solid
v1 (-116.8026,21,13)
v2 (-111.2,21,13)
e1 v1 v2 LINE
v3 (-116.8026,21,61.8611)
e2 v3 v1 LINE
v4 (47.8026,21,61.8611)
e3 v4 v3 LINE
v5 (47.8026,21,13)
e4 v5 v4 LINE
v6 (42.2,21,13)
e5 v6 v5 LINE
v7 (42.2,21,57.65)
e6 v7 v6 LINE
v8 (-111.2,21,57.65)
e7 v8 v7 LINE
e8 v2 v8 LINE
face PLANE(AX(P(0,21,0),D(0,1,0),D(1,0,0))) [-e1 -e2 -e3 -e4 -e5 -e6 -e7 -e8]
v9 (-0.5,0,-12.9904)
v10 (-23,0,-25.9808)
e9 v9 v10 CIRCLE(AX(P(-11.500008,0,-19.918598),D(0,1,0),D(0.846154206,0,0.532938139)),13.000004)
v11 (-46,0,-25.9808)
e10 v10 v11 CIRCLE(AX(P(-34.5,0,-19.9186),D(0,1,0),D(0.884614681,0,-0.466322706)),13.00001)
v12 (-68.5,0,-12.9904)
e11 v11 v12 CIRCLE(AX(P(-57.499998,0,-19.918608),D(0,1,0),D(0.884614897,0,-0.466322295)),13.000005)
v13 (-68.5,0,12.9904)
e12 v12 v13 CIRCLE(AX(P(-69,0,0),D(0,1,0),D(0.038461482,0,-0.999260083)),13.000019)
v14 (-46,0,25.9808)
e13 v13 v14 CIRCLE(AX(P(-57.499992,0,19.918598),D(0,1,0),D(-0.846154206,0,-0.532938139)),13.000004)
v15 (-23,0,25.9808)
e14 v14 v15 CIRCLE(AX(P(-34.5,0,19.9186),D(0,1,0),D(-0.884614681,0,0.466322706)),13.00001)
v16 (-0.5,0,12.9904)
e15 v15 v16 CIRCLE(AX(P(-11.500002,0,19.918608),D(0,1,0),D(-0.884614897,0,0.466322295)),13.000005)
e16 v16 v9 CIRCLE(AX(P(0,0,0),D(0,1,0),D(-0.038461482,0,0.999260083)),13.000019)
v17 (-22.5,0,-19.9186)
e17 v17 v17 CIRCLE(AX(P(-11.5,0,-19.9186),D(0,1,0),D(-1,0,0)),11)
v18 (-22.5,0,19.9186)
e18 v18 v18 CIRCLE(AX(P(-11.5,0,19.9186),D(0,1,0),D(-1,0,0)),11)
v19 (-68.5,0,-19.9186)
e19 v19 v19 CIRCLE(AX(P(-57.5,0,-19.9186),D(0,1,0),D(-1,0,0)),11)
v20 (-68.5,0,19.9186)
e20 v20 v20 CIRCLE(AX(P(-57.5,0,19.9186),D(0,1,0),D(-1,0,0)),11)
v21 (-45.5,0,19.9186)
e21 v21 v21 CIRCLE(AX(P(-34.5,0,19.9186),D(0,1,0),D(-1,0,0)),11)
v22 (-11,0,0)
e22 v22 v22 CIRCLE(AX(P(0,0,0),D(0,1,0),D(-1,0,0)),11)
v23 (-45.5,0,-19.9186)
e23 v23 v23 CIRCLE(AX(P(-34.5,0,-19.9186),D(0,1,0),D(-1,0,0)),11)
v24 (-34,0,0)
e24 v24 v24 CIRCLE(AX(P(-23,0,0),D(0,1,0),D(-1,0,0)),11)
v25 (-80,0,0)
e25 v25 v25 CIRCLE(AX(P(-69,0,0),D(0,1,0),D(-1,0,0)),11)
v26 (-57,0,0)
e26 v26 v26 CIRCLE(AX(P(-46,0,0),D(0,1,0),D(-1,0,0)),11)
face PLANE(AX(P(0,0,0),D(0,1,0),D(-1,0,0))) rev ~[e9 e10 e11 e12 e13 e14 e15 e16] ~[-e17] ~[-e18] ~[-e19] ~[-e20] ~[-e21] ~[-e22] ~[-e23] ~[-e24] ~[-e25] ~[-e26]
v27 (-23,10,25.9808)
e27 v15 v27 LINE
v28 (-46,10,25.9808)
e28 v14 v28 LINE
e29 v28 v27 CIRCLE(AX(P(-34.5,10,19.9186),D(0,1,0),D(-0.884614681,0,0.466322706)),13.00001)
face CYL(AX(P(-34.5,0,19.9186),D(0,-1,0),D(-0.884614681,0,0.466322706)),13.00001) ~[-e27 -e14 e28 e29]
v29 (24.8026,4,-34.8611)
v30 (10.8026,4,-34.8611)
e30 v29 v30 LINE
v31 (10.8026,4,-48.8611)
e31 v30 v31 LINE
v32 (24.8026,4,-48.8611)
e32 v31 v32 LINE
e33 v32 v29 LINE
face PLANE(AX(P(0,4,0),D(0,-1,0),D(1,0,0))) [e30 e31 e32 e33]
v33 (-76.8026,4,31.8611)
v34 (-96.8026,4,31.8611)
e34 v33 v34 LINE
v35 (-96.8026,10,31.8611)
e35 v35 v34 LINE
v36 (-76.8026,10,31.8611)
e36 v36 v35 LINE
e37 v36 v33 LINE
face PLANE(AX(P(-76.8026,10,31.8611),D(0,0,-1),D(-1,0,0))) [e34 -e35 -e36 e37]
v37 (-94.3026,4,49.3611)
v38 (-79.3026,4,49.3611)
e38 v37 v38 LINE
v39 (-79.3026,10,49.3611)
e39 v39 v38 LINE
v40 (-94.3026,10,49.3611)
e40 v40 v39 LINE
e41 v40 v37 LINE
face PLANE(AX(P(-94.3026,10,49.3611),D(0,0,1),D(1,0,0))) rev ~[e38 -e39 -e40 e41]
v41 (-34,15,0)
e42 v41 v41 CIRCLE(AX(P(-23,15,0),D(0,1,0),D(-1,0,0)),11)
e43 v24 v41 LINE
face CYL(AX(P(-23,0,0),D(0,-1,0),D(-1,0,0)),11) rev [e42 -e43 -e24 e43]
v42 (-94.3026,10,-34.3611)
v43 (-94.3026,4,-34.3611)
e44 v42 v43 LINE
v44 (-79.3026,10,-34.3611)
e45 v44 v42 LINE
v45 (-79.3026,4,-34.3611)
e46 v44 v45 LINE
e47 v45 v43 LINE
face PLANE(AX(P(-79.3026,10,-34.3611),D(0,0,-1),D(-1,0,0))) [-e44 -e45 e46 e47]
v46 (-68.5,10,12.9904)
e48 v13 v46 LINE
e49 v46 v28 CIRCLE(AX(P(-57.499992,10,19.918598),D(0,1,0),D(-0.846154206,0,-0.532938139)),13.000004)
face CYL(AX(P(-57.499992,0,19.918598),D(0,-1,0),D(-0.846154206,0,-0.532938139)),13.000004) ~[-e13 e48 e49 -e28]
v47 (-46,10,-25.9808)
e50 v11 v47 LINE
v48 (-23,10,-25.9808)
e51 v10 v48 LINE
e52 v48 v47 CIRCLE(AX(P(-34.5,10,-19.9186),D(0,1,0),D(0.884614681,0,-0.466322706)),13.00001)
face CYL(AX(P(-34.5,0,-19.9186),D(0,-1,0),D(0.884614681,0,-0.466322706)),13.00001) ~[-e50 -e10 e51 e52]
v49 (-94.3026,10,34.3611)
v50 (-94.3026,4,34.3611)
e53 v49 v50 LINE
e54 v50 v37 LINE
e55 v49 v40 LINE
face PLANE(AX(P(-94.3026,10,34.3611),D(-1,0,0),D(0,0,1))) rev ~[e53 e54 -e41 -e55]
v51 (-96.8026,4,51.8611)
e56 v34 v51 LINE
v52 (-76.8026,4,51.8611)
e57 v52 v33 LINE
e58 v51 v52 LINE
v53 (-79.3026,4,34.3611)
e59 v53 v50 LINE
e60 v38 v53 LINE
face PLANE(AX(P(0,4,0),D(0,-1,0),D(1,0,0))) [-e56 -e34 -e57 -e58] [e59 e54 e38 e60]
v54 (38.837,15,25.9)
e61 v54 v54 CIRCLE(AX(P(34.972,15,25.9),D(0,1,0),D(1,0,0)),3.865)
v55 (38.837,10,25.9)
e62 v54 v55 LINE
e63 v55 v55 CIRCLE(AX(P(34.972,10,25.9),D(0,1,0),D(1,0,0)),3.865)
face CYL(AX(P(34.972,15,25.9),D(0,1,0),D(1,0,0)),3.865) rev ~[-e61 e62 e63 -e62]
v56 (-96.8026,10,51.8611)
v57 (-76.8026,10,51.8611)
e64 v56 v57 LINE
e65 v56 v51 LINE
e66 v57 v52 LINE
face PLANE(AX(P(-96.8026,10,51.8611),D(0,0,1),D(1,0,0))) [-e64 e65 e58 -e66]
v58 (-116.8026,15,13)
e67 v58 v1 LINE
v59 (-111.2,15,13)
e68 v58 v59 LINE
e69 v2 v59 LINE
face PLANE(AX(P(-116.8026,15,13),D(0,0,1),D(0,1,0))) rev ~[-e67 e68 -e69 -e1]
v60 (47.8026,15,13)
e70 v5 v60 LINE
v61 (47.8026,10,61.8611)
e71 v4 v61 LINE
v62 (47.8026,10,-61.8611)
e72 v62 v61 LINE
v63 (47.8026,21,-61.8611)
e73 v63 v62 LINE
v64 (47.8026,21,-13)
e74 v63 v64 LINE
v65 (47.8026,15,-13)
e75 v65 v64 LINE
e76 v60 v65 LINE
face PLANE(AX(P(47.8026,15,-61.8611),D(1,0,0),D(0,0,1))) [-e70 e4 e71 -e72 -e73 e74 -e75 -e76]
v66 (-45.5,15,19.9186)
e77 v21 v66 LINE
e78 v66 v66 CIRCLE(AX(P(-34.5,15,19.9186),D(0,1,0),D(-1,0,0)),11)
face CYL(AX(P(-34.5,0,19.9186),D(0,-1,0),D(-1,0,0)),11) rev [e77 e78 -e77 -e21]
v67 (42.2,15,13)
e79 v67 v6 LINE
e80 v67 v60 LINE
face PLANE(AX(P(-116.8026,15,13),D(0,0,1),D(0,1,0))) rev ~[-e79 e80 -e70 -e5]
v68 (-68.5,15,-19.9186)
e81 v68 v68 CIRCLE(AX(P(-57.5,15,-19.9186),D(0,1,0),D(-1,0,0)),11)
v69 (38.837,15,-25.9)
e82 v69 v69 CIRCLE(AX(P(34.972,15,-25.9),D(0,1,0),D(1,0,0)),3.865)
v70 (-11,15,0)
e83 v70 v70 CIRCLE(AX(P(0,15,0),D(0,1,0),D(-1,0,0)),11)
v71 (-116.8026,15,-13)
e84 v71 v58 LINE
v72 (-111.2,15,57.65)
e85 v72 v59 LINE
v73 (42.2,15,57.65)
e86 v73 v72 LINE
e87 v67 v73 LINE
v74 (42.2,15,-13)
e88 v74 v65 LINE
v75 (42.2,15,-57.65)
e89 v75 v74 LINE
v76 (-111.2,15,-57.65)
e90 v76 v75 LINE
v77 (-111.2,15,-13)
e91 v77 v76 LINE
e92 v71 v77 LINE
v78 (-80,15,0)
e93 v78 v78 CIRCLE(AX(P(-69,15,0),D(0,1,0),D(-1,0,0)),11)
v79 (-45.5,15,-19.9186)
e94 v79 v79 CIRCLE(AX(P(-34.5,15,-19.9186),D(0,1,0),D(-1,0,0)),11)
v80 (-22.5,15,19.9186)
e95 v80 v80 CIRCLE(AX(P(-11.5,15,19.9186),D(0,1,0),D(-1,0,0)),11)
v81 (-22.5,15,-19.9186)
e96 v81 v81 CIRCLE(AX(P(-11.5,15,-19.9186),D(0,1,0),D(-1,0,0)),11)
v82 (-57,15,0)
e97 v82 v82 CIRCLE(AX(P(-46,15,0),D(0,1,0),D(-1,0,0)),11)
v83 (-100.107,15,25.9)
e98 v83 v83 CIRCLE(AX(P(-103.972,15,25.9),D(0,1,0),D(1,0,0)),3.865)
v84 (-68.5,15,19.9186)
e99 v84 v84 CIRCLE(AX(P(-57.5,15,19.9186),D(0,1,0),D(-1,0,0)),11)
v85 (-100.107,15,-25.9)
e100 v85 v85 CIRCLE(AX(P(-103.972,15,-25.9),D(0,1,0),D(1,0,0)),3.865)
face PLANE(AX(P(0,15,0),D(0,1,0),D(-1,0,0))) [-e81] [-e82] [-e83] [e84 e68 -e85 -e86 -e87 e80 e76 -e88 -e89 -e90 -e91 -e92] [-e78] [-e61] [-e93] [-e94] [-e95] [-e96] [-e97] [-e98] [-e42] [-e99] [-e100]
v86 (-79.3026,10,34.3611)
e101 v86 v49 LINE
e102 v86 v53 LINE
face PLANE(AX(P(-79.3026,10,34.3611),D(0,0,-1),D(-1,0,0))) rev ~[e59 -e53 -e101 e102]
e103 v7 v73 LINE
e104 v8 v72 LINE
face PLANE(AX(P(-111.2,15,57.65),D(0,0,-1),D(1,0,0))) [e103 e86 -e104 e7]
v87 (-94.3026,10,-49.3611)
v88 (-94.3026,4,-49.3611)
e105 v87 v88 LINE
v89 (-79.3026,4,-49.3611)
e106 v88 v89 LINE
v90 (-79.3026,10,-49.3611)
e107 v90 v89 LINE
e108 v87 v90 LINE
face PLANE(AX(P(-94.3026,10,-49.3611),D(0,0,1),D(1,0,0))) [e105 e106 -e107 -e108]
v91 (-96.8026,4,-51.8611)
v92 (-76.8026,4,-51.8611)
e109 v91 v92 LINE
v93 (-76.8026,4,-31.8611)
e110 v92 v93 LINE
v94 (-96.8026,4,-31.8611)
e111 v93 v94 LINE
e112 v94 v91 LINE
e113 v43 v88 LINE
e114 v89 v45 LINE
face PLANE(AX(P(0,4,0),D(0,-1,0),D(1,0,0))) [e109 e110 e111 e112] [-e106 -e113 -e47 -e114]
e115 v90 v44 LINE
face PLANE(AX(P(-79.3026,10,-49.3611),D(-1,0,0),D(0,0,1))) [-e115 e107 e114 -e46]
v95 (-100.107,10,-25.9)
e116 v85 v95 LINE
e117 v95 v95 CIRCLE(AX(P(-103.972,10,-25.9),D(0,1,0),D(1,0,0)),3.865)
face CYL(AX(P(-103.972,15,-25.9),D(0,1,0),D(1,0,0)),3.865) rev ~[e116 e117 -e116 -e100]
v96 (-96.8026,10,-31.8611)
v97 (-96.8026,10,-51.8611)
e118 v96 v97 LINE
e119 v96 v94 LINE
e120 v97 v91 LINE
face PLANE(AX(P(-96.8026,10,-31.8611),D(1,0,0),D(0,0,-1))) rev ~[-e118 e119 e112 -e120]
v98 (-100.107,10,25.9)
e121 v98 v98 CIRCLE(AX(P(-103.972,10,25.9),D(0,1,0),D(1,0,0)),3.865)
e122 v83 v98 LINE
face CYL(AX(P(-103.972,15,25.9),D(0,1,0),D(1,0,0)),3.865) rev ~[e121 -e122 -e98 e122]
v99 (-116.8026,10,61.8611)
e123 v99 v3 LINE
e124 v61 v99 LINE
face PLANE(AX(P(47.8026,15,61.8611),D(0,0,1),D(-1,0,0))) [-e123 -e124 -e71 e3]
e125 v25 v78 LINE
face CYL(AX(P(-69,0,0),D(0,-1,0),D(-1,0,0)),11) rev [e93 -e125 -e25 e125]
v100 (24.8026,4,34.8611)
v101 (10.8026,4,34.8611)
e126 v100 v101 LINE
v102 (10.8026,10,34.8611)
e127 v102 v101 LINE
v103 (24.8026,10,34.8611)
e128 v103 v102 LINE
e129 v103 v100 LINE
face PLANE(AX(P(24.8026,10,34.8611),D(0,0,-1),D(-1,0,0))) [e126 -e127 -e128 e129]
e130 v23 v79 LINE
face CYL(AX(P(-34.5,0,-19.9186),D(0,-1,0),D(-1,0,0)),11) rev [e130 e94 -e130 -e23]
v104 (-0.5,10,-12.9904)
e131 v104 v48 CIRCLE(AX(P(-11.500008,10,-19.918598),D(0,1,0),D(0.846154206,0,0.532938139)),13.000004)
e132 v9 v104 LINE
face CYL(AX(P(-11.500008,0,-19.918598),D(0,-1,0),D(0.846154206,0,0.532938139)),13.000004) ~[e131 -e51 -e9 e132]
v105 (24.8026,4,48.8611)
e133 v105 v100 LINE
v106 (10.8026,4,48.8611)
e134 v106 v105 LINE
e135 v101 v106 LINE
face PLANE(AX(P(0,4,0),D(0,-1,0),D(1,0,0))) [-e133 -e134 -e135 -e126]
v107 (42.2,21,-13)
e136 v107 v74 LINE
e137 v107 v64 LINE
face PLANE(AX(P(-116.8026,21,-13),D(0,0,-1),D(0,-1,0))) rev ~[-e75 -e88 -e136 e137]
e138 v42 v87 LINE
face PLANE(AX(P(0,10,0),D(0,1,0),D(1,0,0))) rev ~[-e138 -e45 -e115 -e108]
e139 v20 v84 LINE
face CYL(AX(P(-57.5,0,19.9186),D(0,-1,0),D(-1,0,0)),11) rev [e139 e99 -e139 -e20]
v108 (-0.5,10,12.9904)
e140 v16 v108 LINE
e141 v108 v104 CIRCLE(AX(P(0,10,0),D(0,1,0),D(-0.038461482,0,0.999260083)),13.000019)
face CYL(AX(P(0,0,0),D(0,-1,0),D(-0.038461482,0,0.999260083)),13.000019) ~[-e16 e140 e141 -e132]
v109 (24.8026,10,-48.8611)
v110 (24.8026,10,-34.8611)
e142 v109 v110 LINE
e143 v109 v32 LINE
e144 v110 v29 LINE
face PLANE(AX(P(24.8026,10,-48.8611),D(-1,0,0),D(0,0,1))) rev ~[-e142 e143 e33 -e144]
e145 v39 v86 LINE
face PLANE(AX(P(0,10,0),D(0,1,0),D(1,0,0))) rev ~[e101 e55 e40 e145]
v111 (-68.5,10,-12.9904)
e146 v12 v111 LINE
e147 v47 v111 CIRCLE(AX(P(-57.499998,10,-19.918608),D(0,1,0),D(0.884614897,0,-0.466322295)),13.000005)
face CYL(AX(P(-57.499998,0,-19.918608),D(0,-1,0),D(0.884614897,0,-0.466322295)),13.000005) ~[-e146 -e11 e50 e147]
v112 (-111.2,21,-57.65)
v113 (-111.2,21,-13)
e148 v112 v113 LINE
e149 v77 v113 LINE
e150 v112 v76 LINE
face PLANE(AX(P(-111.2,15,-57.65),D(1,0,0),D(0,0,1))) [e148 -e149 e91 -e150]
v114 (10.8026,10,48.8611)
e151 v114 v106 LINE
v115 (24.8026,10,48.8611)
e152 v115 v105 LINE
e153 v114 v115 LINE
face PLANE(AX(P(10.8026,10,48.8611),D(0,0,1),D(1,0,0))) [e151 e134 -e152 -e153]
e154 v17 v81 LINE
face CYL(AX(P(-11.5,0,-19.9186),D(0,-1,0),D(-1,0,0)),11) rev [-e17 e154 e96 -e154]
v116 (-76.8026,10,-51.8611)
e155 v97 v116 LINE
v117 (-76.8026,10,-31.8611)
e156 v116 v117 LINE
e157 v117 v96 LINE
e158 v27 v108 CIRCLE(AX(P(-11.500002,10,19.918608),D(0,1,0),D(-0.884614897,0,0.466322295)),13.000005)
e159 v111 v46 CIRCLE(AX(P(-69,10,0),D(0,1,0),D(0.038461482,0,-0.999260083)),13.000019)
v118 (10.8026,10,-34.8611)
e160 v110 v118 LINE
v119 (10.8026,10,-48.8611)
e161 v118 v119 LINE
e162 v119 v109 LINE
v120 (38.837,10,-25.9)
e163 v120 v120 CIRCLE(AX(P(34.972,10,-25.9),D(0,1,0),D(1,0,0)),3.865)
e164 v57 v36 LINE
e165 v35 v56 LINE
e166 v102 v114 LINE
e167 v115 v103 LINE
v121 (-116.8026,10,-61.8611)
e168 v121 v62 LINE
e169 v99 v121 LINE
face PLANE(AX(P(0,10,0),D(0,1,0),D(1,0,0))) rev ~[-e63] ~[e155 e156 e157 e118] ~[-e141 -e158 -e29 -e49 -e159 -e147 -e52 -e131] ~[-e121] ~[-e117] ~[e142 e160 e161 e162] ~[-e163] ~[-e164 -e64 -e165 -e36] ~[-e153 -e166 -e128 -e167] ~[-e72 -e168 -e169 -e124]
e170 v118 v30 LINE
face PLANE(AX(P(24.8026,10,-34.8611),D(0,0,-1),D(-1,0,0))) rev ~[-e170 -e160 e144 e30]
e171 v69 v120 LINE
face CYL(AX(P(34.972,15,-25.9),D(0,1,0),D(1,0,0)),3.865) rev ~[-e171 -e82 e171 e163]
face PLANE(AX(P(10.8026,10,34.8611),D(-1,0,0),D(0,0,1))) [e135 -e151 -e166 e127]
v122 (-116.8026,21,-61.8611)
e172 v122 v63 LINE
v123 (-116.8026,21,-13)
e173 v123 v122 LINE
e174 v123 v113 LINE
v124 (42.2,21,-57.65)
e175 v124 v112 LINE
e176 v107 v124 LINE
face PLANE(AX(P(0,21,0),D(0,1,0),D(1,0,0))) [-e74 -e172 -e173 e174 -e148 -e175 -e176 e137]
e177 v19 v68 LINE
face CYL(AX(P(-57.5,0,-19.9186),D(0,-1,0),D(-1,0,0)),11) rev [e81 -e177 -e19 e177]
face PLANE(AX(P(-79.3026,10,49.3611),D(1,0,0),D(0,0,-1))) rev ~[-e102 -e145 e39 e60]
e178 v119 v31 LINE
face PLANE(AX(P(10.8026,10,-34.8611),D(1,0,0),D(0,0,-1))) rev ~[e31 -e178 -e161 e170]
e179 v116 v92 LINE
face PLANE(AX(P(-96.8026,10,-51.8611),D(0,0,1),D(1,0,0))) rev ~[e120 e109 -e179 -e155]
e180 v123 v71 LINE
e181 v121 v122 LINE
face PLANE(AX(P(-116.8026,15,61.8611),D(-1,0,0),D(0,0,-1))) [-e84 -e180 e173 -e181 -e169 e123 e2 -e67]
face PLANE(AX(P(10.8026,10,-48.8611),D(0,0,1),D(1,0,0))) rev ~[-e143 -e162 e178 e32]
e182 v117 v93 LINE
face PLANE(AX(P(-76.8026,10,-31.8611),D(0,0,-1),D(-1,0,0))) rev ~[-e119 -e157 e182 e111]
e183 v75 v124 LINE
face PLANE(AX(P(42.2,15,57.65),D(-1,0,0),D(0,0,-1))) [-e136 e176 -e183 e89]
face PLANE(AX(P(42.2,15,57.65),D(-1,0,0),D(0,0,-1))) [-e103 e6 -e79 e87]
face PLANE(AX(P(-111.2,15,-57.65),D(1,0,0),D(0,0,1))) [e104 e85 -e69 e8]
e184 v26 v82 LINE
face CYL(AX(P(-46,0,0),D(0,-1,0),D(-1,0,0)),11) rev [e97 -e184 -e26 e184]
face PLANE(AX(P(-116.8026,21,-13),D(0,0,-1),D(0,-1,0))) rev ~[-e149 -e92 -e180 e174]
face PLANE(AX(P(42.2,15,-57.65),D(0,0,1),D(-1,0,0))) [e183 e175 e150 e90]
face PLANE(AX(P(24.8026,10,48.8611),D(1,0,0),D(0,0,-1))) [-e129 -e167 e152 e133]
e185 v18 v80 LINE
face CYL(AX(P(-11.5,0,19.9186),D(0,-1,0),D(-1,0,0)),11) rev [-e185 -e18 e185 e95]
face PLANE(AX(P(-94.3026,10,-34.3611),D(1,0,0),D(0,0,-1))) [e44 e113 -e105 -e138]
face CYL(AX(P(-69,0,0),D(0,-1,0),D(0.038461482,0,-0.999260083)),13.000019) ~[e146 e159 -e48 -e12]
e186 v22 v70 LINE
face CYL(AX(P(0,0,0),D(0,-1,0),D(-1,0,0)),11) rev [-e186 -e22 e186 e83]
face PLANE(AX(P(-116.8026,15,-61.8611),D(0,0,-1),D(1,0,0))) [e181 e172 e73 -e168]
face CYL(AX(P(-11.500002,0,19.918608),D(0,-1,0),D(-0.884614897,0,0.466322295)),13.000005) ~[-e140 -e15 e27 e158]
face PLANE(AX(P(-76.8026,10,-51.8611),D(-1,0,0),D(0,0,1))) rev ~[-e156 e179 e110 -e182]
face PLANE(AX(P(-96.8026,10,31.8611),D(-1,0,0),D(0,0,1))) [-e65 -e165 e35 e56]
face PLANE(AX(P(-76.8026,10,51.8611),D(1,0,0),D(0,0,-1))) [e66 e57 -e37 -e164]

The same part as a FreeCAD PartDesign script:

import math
import FreeCAD as App
import Part
import Sketcher
Q = App.Units.Quantity

doc = App.newDocument("Part")
body = doc.addObject("PartDesign::Body", "Body")

# Sketch on XZ plane
sketch1 = doc.addObject("Sketcher::SketchObject", "Sketch")
body.addObject(sketch1)
sketch1.AttachmentSupport = (doc.XZ_Plane, [""])
sketch1.MapMode = "FlatFace"
sketch1.addGeometry([
    Part.ArcOfCircle(Part.Circle(App.Vector(-12, 20, 0), App.Vector(0, 0, 1), 13), math.radians(-32), math.radians(152)),  # 0
    Part.ArcOfCircle(Part.Circle(App.Vector(0, 0, 0), App.Vector(0, 0, 1), 13), math.radians(-92), math.radians(92)),  # 1
    Part.ArcOfCircle(Part.Circle(App.Vector(-12, -20, 0), App.Vector(0, 0, 1), 13), math.radians(-152), math.radians(32)),  # 2
    Part.ArcOfCircle(Part.Circle(App.Vector(-34, -20, 0), App.Vector(0, 0, 1), 13), math.radians(-152), math.radians(-28)),  # 3
    Part.ArcOfCircle(Part.Circle(App.Vector(-58, -20, 0), App.Vector(0, 0, 1), 13), math.radians(148), math.radians(332)),  # 4
    Part.ArcOfCircle(Part.Circle(App.Vector(-69, 0, 0), App.Vector(0, 0, 1), 13), math.radians(88), math.radians(272)),  # 5
    Part.ArcOfCircle(Part.Circle(App.Vector(-58, 20, 0), App.Vector(0, 0, 1), 13), math.radians(28), math.radians(212)),  # 6
    Part.ArcOfCircle(Part.Circle(App.Vector(-34, 20, 0), App.Vector(0, 0, 1), 13), math.radians(28), math.radians(152)),  # 7
    Part.Circle(App.Vector(-12, -20, 0), App.Vector(0, 0, 1), 11),  # 8
    Part.Circle(App.Vector(-34, -20, 0), App.Vector(0, 0, 1), 11),  # 9
    Part.Circle(App.Vector(-58, -20, 0), App.Vector(0, 0, 1), 11),  # 10
    Part.Circle(App.Vector(0, 0, 0), App.Vector(0, 0, 1), 11),  # 11
    Part.Circle(App.Vector(-23, 0, 0), App.Vector(0, 0, 1), 11),  # 12
    Part.Circle(App.Vector(-12, 20, 0), App.Vector(0, 0, 1), 11),  # 13
    Part.Circle(App.Vector(-34, 20, 0), App.Vector(0, 0, 1), 11),  # 14
    Part.Circle(App.Vector(-46, 0, 0), App.Vector(0, 0, 1), 11),  # 15
    Part.Circle(App.Vector(-69, 0, 0), App.Vector(0, 0, 1), 11),  # 16
    Part.Circle(App.Vector(-58, 20, 0), App.Vector(0, 0, 1), 11),  # 17
], False)
sketch1.addConstraint([
    Sketcher.Constraint("Coincident", 0, 1, 1, 2),
    Sketcher.Constraint("Coincident", 1, 1, 2, 2),
    Sketcher.Constraint("Coincident", 2, 1, 3, 2),
    Sketcher.Constraint("Coincident", 3, 1, 4, 2),
    Sketcher.Constraint("Coincident", 4, 1, 5, 2),
    Sketcher.Constraint("Coincident", 5, 1, 6, 2),
    Sketcher.Constraint("Coincident", 6, 1, 7, 2),
    Sketcher.Constraint("Coincident", 7, 1, 0, 2),
    Sketcher.Constraint("Coincident", 1, 3, -1, 1),
    Sketcher.Constraint("Coincident", 11, 3, -1, 1),
    Sketcher.Constraint("Coincident", 8, 3, 2, 3),
    Sketcher.Constraint("Coincident", 9, 3, 3, 3),
    Sketcher.Constraint("Coincident", 10, 3, 4, 3),
    Sketcher.Constraint("Coincident", 13, 3, 0, 3),
    Sketcher.Constraint("Coincident", 14, 3, 7, 3),
    Sketcher.Constraint("Coincident", 16, 3, 5, 3),
    Sketcher.Constraint("Coincident", 17, 3, 6, 3),
    Sketcher.Constraint("Equal", 0, 1),
    Sketcher.Constraint("Equal", 1, 2),
    Sketcher.Constraint("Equal", 2, 3),
    Sketcher.Constraint("Equal", 3, 4),
    Sketcher.Constraint("Equal", 4, 5),
    Sketcher.Constraint("Equal", 5, 6),
    Sketcher.Constraint("Equal", 6, 7),
    Sketcher.Constraint("Equal", 8, 9),
    Sketcher.Constraint("Equal", 9, 10),
    Sketcher.Constraint("Equal", 10, 11),
    Sketcher.Constraint("Equal", 11, 12),
    Sketcher.Constraint("Equal", 12, 13),
    Sketcher.Constraint("Equal", 13, 14),
    Sketcher.Constraint("Equal", 14, 15),
    Sketcher.Constraint("Equal", 15, 16),
    Sketcher.Constraint("Equal", 16, 17),
    Sketcher.Constraint("Symmetric", 0, 3, 2, 3, -1),
    Sketcher.Constraint("Symmetric", 4, 3, 6, 3, -1),
    Sketcher.Constraint("Symmetric", 3, 3, 7, 3, -1),
    Sketcher.Constraint("PointOnObject", 5, 3, -1),
    Sketcher.Constraint("PointOnObject", 12, 3, -1),
    Sketcher.Constraint("PointOnObject", 15, 3, -1),
    Sketcher.Constraint("Horizontal", 2, 3, 3, 3),
    Sketcher.Constraint("Horizontal", 3, 3, 4, 3),
    Sketcher.Constraint("Horizontal", 2, 1, 3, 1),
    Sketcher.Constraint("Horizontal", 1, 1, 4, 1),
    Sketcher.Constraint("Vertical", 12, 3, 2, 1),
    Sketcher.Constraint("Vertical", 15, 3, 3, 1),
    Sketcher.Constraint("Diameter", 8, Q("22 mm")),
    Sketcher.Constraint("Radius", 0, Q("13 mm")),
    Sketcher.Constraint("DistanceX", 5, 3, -1, 1, Q("69 mm")),
    Sketcher.Constraint("DistanceX", 12, 3, -1, 1, Q("23 mm")),
    Sketcher.Constraint("DistanceX", 0, 3, 0, 1, Q("11 mm")),
])
pad1 = doc.addObject("PartDesign::Pad", "Pad")
body.addObject(pad1)
pad1.Profile = sketch1
pad1.Length = 15
pad1.Reversed = True

# Sketch on XZ plane
sketch2 = doc.addObject("Sketcher::SketchObject", "Sketch001")
body.addObject(sketch2)
sketch2.AttachmentSupport = (doc.XZ_Plane, [""])
sketch2.MapMode = "FlatFace"
sketch2.AttachmentOffset = App.Placement(App.Vector(0, 0, -15), App.Rotation())
sketch2.addGeometry([
    Part.LineSegment(App.Vector(42, -58, 0), App.Vector(-111, -58, 0)),  # 0
    Part.LineSegment(App.Vector(-111, -58, 0), App.Vector(-111, 58, 0)),  # 1
    Part.LineSegment(App.Vector(-111, 58, 0), App.Vector(42, 58, 0)),  # 2
    Part.LineSegment(App.Vector(42, 58, 0), App.Vector(42, -58, 0)),  # 3
    Part.ArcOfCircle(Part.Circle(App.Vector(-58, -20, 0), App.Vector(0, 0, 1), 13), math.radians(148), math.radians(332)),  # 4
    Part.ArcOfCircle(Part.Circle(App.Vector(-34, -20, 0), App.Vector(0, 0, 1), 13), math.radians(-152), math.radians(-28)),  # 5
    Part.ArcOfCircle(Part.Circle(App.Vector(-12, -20, 0), App.Vector(0, 0, 1), 13), math.radians(-152), math.radians(32)),  # 6
    Part.ArcOfCircle(Part.Circle(App.Vector(0, 0, 0), App.Vector(0, 0, 1), 13), math.radians(-92), math.radians(92)),  # 7
    Part.ArcOfCircle(Part.Circle(App.Vector(-12, 20, 0), App.Vector(0, 0, 1), 13), math.radians(-32), math.radians(152)),  # 8
    Part.ArcOfCircle(Part.Circle(App.Vector(-34, 20, 0), App.Vector(0, 0, 1), 13), math.radians(28), math.radians(152)),  # 9
    Part.ArcOfCircle(Part.Circle(App.Vector(-58, 20, 0), App.Vector(0, 0, 1), 13), math.radians(28), math.radians(212)),  # 10
    Part.ArcOfCircle(Part.Circle(App.Vector(-69, 0, 0), App.Vector(0, 0, 1), 13), math.radians(88), math.radians(272)),  # 11
], False)
sketch2.addConstraint([
    Sketcher.Constraint("Coincident", 0, 2, 1, 1),
    Sketcher.Constraint("Coincident", 1, 2, 2, 1),
    Sketcher.Constraint("Coincident", 2, 2, 3, 1),
    Sketcher.Constraint("Coincident", 3, 2, 0, 1),
    Sketcher.Constraint("Coincident", 4, 2, 5, 1),
    Sketcher.Constraint("Coincident", 5, 2, 6, 1),
    Sketcher.Constraint("Coincident", 6, 2, 7, 1),
    Sketcher.Constraint("Coincident", 7, 2, 8, 1),
    Sketcher.Constraint("Coincident", 8, 2, 9, 1),
    Sketcher.Constraint("Coincident", 9, 2, 10, 1),
    Sketcher.Constraint("Coincident", 10, 2, 11, 1),
    Sketcher.Constraint("Coincident", 11, 2, 4, 1),
    Sketcher.Constraint("Horizontal", 0),
    Sketcher.Constraint("Vertical", 1),
    Sketcher.Constraint("Horizontal", 2),
    Sketcher.Constraint("Vertical", 3),
    Sketcher.Constraint("Coincident", 7, 3, -1, 1),
    Sketcher.Constraint("Equal", 4, 5),
    Sketcher.Constraint("Equal", 5, 6),
    Sketcher.Constraint("Equal", 6, 7),
    Sketcher.Constraint("Equal", 7, 8),
    Sketcher.Constraint("Equal", 8, 9),
    Sketcher.Constraint("Equal", 9, 10),
    Sketcher.Constraint("Equal", 10, 11),
    Sketcher.Constraint("Symmetric", 6, 3, 8, 3, -1),
    Sketcher.Constraint("Symmetric", 5, 3, 9, 3, -1),
    Sketcher.Constraint("Symmetric", 4, 3, 10, 3, -1),
    Sketcher.Constraint("PointOnObject", 11, 3, -1),
    Sketcher.Constraint("Horizontal", 4, 3, 5, 3),
    Sketcher.Constraint("Horizontal", 5, 3, 6, 3),
    Sketcher.Constraint("Horizontal", 4, 2, 5, 2),
    Sketcher.Constraint("Horizontal", 7, 2, 10, 2),
    Sketcher.Constraint("DistanceX", 0, 2, 0, 1, Q("153.4 mm")),
    Sketcher.Constraint("DistanceY", 1, 1, 1, 2, Q("115.3 mm")),
    Sketcher.Constraint("Radius", 4, Q("13 mm")),
    Sketcher.Constraint("DistanceX", 11, 3, -1, 1, Q("69 mm")),
    Sketcher.Constraint("DistanceX", 4, 2, -1, 1, Q("46 mm")),
    Sketcher.Constraint("DistanceX", 6, 3, 6, 2, Q("11 mm")),
    Sketcher.Constraint("DistanceX", 0, 2, -1, 1, Q("111.2 mm")),
    Sketcher.Constraint("DistanceY", 0, 2, -1, 1, Q("57.65 mm")),
])
pad2 = doc.addObject("PartDesign::Pad", "Pad001")
body.addObject(pad2)
pad2.Profile = sketch2
pad2.Length = 5

# Sketch on XZ plane
sketch3 = doc.addObject("Sketcher::SketchObject", "Sketch002")
body.addObject(sketch3)
sketch3.AttachmentSupport = (doc.XZ_Plane, [""])
sketch3.MapMode = "FlatFace"
sketch3.AttachmentOffset = App.Placement(App.Vector(0, 0, -15), App.Rotation())
sketch3.addGeometry([
    Part.LineSegment(App.Vector(48, -62, 0), App.Vector(-117, -62, 0)),  # 0
    Part.LineSegment(App.Vector(-117, -62, 0), App.Vector(-117, 62, 0)),  # 1
    Part.LineSegment(App.Vector(-117, 62, 0), App.Vector(48, 62, 0)),  # 2
    Part.LineSegment(App.Vector(48, 62, 0), App.Vector(48, -62, 0)),  # 3
    Part.LineSegment(App.Vector(-111, -58, 0), App.Vector(42, -58, 0)),  # 4
    Part.LineSegment(App.Vector(42, -58, 0), App.Vector(42, 58, 0)),  # 5
    Part.LineSegment(App.Vector(42, 58, 0), App.Vector(-111, 58, 0)),  # 6
    Part.LineSegment(App.Vector(-111, 58, 0), App.Vector(-111, -58, 0)),  # 7
], False)
sketch3.addConstraint([
    Sketcher.Constraint("Coincident", 0, 2, 1, 1),
    Sketcher.Constraint("Coincident", 1, 2, 2, 1),
    Sketcher.Constraint("Coincident", 2, 2, 3, 1),
    Sketcher.Constraint("Coincident", 3, 2, 0, 1),
    Sketcher.Constraint("Coincident", 4, 2, 5, 1),
    Sketcher.Constraint("Coincident", 5, 2, 6, 1),
    Sketcher.Constraint("Coincident", 6, 2, 7, 1),
    Sketcher.Constraint("Coincident", 7, 2, 4, 1),
    Sketcher.Constraint("Horizontal", 0),
    Sketcher.Constraint("Vertical", 1),
    Sketcher.Constraint("Horizontal", 2),
    Sketcher.Constraint("Vertical", 3),
    Sketcher.Constraint("Horizontal", 4),
    Sketcher.Constraint("Vertical", 5),
    Sketcher.Constraint("Horizontal", 6),
    Sketcher.Constraint("Vertical", 7),
    Sketcher.Constraint("DistanceX", 4, 1, 4, 2, Q("153.4 mm")),
    Sketcher.Constraint("DistanceY", 5, 1, 5, 2, Q("115.3 mm")),
    Sketcher.Constraint("DistanceX", -1, 1, 4, 2, Q("42.2 mm")),
    Sketcher.Constraint("DistanceY", 4, 2, -1, 1, Q("57.65 mm")),
    Sketcher.Constraint("DistanceX", 0, 2, 0, 1, Q("164.6052 mm")),
    Sketcher.Constraint("DistanceY", 1, 1, 1, 2, Q("123.7222 mm")),
    Sketcher.Constraint("DistanceY", 0, 2, -1, 1, Q("61.861 mm")),
    Sketcher.Constraint("DistanceX", 0, 2, -1, 1, Q("116.8026 mm")),
])
pad3 = doc.addObject("PartDesign::Pad", "Pad002")
body.addObject(pad3)
pad3.Profile = sketch3
pad3.Type = "TwoLengths"
pad3.Length = 6
pad3.Length2 = 5
pad3.Reversed = True

# Sketch on XZ plane
sketch4 = doc.addObject("Sketcher::SketchObject", "Sketch003")
body.addObject(sketch4)
sketch4.AttachmentSupport = (doc.XZ_Plane, [""])
sketch4.MapMode = "FlatFace"
sketch4.AttachmentOffset = App.Placement(App.Vector(0, 0, -15), App.Rotation())
sketch4.addGeometry([
    Part.Circle(App.Vector(-104, -25.9, 0), App.Vector(0, 0, 1), 3.9),
    Part.Circle(App.Vector(35, -25.9, 0), App.Vector(0, 0, 1), 3.9),
    Part.Circle(App.Vector(35, 25.9, 0), App.Vector(0, 0, 1), 3.9),
    Part.Circle(App.Vector(-104, 25.9, 0), App.Vector(0, 0, 1), 3.9),
], False)
sketch4.addConstraint([
    Sketcher.Constraint("Equal", 0, 1),
    Sketcher.Constraint("Equal", 1, 2),
    Sketcher.Constraint("Equal", 2, 3),
    Sketcher.Constraint("Symmetric", 1, 3, 2, 3, -1),
    Sketcher.Constraint("Symmetric", 0, 3, 3, 3, -1),
    Sketcher.Constraint("Horizontal", 0, 3, 1, 3),
    Sketcher.Constraint("Diameter", 0, Q("7.73 mm")),
    Sketcher.Constraint("DistanceY", 0, 3, -1, 1, Q("25.9 mm")),
    Sketcher.Constraint("DistanceX", 0, 3, -1, 1, Q("103.972 mm")),
    Sketcher.Constraint("DistanceX", -1, 1, 1, 3, Q("34.972 mm")),
])
pocket1 = doc.addObject("PartDesign::Pocket", "Pocket")
body.addObject(pocket1)
pocket1.Profile = sketch4
pocket1.Type = "ThroughAll"
pocket1.Reversed = True

# Sketch on YZ plane
sketch5 = doc.addObject("Sketcher::SketchObject", "Sketch004")
body.addObject(sketch5)
sketch5.AttachmentSupport = (doc.YZ_Plane, [""])
sketch5.MapMode = "FlatFace"
sketch5.AttachmentOffset = App.Placement(App.Vector(0, 0, -116.8026), App.Rotation())
sketch5.addGeometry([
    Part.LineSegment(App.Vector(21, -13, 0), App.Vector(15, -13, 0)),
    Part.LineSegment(App.Vector(15, -13, 0), App.Vector(15, 13, 0)),
    Part.LineSegment(App.Vector(15, 13, 0), App.Vector(21, 13, 0)),
    Part.LineSegment(App.Vector(21, 13, 0), App.Vector(21, -13, 0)),
], False)
sketch5.addConstraint([
    Sketcher.Constraint("Coincident", 0, 2, 1, 1),
    Sketcher.Constraint("Coincident", 1, 2, 2, 1),
    Sketcher.Constraint("Coincident", 2, 2, 3, 1),
    Sketcher.Constraint("Coincident", 3, 2, 0, 1),
    Sketcher.Constraint("Horizontal", 0),
    Sketcher.Constraint("Vertical", 1),
    Sketcher.Constraint("Horizontal", 2),
    Sketcher.Constraint("Vertical", 3),
    Sketcher.Constraint("DistanceX", 0, 2, 0, 1, Q("6 mm")),
    Sketcher.Constraint("DistanceY", 1, 1, 1, 2, Q("26 mm")),
    Sketcher.Constraint("DistanceX", -1, 1, 0, 2, Q("15 mm")),
    Sketcher.Constraint("DistanceY", 0, 2, -1, 1, Q("13 mm")),
])
pocket2 = doc.addObject("PartDesign::Pocket", "Pocket001")
body.addObject(pocket2)
pocket2.Profile = sketch5
pocket2.Type = "ThroughAll"
pocket2.Reversed = True

# Sketch on XZ plane
sketch6 = doc.addObject("Sketcher::SketchObject", "Sketch005")
body.addObject(sketch6)
sketch6.AttachmentSupport = (doc.XZ_Plane, [""])
sketch6.MapMode = "FlatFace"
sketch6.AttachmentOffset = App.Placement(App.Vector(0, 0, -10), App.Rotation())
sketch6.addGeometry([
    Part.LineSegment(App.Vector(-77, 52, 0), App.Vector(-97, 52, 0)),  # 0
    Part.LineSegment(App.Vector(-97, 52, 0), App.Vector(-97, 32, 0)),  # 1
    Part.LineSegment(App.Vector(-97, 32, 0), App.Vector(-77, 32, 0)),  # 2
    Part.LineSegment(App.Vector(-77, 32, 0), App.Vector(-77, 52, 0)),  # 3
    Part.LineSegment(App.Vector(-94, 34, 0), App.Vector(-94, 49, 0)),  # 4
    Part.LineSegment(App.Vector(-94, 49, 0), App.Vector(-79, 49, 0)),  # 5
    Part.LineSegment(App.Vector(-79, 49, 0), App.Vector(-79, 34, 0)),  # 6
    Part.LineSegment(App.Vector(-79, 34, 0), App.Vector(-94, 34, 0)),  # 7
    Part.LineSegment(App.Vector(-97, -32, 0), App.Vector(-97, -52, 0)),  # 8
    Part.LineSegment(App.Vector(-97, -52, 0), App.Vector(-77, -52, 0)),  # 9
    Part.LineSegment(App.Vector(-77, -52, 0), App.Vector(-77, -32, 0)),  # 10
    Part.LineSegment(App.Vector(-77, -32, 0), App.Vector(-97, -32, 0)),  # 11
    Part.LineSegment(App.Vector(-79, -49, 0), App.Vector(-94, -49, 0)),  # 12
    Part.LineSegment(App.Vector(-94, -49, 0), App.Vector(-94, -34, 0)),  # 13
    Part.LineSegment(App.Vector(-94, -34, 0), App.Vector(-79, -34, 0)),  # 14
    Part.LineSegment(App.Vector(-79, -34, 0), App.Vector(-79, -49, 0)),  # 15
    Part.LineSegment(App.Vector(25, 49, 0), App.Vector(11, 49, 0)),  # 16
    Part.LineSegment(App.Vector(11, 49, 0), App.Vector(11, 35, 0)),  # 17
    Part.LineSegment(App.Vector(11, 35, 0), App.Vector(25, 35, 0)),  # 18
    Part.LineSegment(App.Vector(25, 35, 0), App.Vector(25, 49, 0)),  # 19
    Part.LineSegment(App.Vector(11, -35, 0), App.Vector(11, -49, 0)),  # 20
    Part.LineSegment(App.Vector(11, -49, 0), App.Vector(25, -49, 0)),  # 21
    Part.LineSegment(App.Vector(25, -49, 0), App.Vector(25, -35, 0)),  # 22
    Part.LineSegment(App.Vector(25, -35, 0), App.Vector(11, -35, 0)),  # 23
], False)
sketch6.addConstraint([
    Sketcher.Constraint("Coincident", 0, 2, 1, 1),
    Sketcher.Constraint("Coincident", 1, 2, 2, 1),
    Sketcher.Constraint("Coincident", 2, 2, 3, 1),
    Sketcher.Constraint("Coincident", 3, 2, 0, 1),
    Sketcher.Constraint("Coincident", 4, 2, 5, 1),
    Sketcher.Constraint("Coincident", 5, 2, 6, 1),
    Sketcher.Constraint("Coincident", 6, 2, 7, 1),
    Sketcher.Constraint("Coincident", 7, 2, 4, 1),
    Sketcher.Constraint("Coincident", 8, 2, 9, 1),
    Sketcher.Constraint("Coincident", 9, 2, 10, 1),
    Sketcher.Constraint("Coincident", 10, 2, 11, 1),
    Sketcher.Constraint("Coincident", 11, 2, 8, 1),
    Sketcher.Constraint("Coincident", 12, 2, 13, 1),
    Sketcher.Constraint("Coincident", 13, 2, 14, 1),
    Sketcher.Constraint("Coincident", 14, 2, 15, 1),
    Sketcher.Constraint("Coincident", 15, 2, 12, 1),
    Sketcher.Constraint("Coincident", 16, 2, 17, 1),
    Sketcher.Constraint("Coincident", 17, 2, 18, 1),
    Sketcher.Constraint("Coincident", 18, 2, 19, 1),
    Sketcher.Constraint("Coincident", 19, 2, 16, 1),
    Sketcher.Constraint("Coincident", 20, 2, 21, 1),
    Sketcher.Constraint("Coincident", 21, 2, 22, 1),
    Sketcher.Constraint("Coincident", 22, 2, 23, 1),
    Sketcher.Constraint("Coincident", 23, 2, 20, 1),
    Sketcher.Constraint("Horizontal", 0),
    Sketcher.Constraint("Vertical", 1),
    Sketcher.Constraint("Horizontal", 2),
    Sketcher.Constraint("Vertical", 3),
    Sketcher.Constraint("Vertical", 4),
    Sketcher.Constraint("Horizontal", 5),
    Sketcher.Constraint("Vertical", 6),
    Sketcher.Constraint("Horizontal", 7),
    Sketcher.Constraint("Vertical", 8),
    Sketcher.Constraint("Horizontal", 9),
    Sketcher.Constraint("Vertical", 10),
    Sketcher.Constraint("Horizontal", 11),
    Sketcher.Constraint("Horizontal", 12),
    Sketcher.Constraint("Vertical", 13),
    Sketcher.Constraint("Horizontal", 14),
    Sketcher.Constraint("Vertical", 15),
    Sketcher.Constraint("Horizontal", 16),
    Sketcher.Constraint("Vertical", 17),
    Sketcher.Constraint("Horizontal", 18),
    Sketcher.Constraint("Vertical", 19),
    Sketcher.Constraint("Vertical", 20),
    Sketcher.Constraint("Horizontal", 21),
    Sketcher.Constraint("Vertical", 22),
    Sketcher.Constraint("Horizontal", 23),
    Sketcher.Constraint("Symmetric", 0, 2, 8, 2, -1),
    Sketcher.Constraint("Symmetric", 2, 2, 10, 2, -1),
    Sketcher.Constraint("Symmetric", 4, 2, 12, 2, -1),
    Sketcher.Constraint("Symmetric", 6, 2, 14, 2, -1),
    Sketcher.Constraint("Symmetric", 16, 2, 20, 2, -1),
    Sketcher.Constraint("Symmetric", 18, 2, 22, 2, -1),
    Sketcher.Constraint("Equal", 11, 1),
    Sketcher.Constraint("Equal", 14, 4),
    Sketcher.Constraint("Equal", 23, 17),
    Sketcher.Constraint("DistanceX", 0, 2, 0, 1, Q("20 mm")),
    Sketcher.Constraint("DistanceX", 5, 1, 5, 2, Q("15 mm")),
    Sketcher.Constraint("DistanceX", 16, 2, 16, 1, Q("14 mm")),
    Sketcher.Constraint("DistanceY", 16, 2, 3, 2, Q("3 mm")),
    Sketcher.Constraint("DistanceX", 0, 2, 4, 2, Q("2.5 mm")),
    Sketcher.Constraint("DistanceY", 4, 2, 0, 2, Q("2.5 mm")),
    Sketcher.Constraint("DistanceY", -1, 1, 0, 2, Q("51.861 mm")),
    Sketcher.Constraint("DistanceX", 0, 2, -1, 1, Q("96.8026 mm")),
    Sketcher.Constraint("DistanceX", -1, 1, 16, 2, Q("10.8026 mm")),
])
pad4 = doc.addObject("PartDesign::Pad", "Pad003")
body.addObject(pad4)
pad4.Profile = sketch6
pad4.Length = 6

doc.recompute()
